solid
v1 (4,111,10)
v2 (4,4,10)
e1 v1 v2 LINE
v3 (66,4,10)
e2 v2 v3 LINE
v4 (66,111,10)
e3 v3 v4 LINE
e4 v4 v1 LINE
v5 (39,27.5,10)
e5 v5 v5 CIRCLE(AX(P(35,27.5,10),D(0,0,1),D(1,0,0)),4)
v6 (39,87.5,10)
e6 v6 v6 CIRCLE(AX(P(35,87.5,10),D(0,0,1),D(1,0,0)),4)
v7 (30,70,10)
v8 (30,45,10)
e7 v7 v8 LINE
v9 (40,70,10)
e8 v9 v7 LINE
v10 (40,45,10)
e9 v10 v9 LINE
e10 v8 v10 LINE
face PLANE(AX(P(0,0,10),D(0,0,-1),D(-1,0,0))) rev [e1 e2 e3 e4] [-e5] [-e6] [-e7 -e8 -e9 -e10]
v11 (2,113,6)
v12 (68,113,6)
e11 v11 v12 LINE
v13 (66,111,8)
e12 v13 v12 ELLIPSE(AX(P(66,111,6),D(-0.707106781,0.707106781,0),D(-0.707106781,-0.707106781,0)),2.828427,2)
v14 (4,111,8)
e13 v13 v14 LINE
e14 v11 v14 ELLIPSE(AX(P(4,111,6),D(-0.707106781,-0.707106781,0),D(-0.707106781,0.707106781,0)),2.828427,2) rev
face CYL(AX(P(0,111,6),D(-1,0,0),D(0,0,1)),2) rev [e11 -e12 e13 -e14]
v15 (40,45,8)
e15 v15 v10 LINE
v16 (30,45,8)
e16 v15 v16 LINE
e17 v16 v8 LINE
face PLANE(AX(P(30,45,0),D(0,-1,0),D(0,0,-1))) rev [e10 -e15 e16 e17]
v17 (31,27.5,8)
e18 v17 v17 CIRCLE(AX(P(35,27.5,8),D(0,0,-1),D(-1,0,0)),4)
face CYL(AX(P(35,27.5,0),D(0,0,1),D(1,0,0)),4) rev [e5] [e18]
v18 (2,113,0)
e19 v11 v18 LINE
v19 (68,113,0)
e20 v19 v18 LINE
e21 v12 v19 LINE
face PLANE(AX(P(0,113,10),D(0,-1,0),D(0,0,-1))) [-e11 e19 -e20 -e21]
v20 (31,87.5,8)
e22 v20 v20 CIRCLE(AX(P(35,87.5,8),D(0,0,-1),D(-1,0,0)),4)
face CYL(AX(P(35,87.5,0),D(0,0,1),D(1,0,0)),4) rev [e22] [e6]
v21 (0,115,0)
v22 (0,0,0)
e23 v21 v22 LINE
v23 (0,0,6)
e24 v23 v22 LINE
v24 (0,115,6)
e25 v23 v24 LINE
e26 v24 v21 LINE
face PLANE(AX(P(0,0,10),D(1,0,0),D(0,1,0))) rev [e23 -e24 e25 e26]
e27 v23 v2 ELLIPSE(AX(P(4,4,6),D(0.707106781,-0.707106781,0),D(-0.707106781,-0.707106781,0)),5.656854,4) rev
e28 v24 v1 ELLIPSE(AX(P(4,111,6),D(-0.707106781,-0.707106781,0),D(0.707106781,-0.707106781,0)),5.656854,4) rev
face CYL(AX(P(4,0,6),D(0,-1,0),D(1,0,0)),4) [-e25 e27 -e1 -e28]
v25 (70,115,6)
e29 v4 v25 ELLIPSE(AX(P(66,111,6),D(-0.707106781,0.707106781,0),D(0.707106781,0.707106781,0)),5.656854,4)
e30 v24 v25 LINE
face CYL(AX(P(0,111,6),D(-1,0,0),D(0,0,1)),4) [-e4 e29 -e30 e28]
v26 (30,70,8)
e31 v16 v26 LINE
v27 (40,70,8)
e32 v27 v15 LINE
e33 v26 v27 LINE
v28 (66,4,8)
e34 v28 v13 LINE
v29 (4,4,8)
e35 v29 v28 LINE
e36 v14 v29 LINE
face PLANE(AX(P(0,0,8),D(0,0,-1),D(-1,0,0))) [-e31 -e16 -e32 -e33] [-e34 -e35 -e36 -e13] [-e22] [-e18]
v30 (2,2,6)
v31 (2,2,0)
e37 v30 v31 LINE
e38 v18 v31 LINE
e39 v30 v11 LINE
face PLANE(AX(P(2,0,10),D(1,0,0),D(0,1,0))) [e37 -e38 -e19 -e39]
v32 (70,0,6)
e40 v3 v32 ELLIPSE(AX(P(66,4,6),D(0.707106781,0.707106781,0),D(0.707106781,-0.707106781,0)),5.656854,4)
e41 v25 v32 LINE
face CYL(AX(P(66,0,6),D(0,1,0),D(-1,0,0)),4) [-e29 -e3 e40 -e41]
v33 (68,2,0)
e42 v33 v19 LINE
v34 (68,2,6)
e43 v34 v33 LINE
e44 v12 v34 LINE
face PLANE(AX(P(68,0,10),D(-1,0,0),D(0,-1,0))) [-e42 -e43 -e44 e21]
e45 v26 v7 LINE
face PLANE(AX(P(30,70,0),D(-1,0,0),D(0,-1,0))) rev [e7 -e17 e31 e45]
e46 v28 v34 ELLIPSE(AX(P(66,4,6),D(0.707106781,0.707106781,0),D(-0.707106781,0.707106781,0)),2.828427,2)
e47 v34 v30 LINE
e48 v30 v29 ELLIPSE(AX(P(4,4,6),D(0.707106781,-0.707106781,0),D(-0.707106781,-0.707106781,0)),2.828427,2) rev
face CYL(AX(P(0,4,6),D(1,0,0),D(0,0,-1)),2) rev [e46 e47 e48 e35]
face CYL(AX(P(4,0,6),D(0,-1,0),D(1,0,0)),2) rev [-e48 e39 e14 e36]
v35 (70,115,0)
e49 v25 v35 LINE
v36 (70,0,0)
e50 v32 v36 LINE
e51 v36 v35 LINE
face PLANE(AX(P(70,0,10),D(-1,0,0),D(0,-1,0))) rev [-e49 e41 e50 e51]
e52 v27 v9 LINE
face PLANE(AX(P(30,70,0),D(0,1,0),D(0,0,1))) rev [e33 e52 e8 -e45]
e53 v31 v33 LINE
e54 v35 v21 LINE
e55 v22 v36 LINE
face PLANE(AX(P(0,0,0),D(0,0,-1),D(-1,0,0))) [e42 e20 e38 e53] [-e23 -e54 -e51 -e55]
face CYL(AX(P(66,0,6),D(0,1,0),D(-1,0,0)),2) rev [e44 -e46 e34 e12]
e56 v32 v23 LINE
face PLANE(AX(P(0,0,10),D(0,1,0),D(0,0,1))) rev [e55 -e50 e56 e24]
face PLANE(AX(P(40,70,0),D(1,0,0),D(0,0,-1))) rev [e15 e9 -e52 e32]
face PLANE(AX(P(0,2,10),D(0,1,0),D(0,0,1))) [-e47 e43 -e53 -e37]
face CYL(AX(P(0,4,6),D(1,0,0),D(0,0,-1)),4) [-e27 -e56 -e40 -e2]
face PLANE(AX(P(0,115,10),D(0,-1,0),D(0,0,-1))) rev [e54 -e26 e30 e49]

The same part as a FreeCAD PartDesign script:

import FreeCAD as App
import Part
import Sketcher
from FreeCAD import Vector


def edges_at(feature, points):
    """Names of the edges that pass closest to the given points."""
    edges = feature.Shape.Edges
    near = lambda p: min(range(len(edges)), key=lambda i: edges[i].distToShape(Part.Vertex(*p))[0])
    return sorted({f"Edge{near(p) + 1}" for p in points})


def faces_at(feature, points):
    """Names of the faces that lie closest to the given points."""
    faces = feature.Shape.Faces
    near = lambda p: min(range(len(faces)), key=lambda i: faces[i].distToShape(Part.Vertex(*p))[0])
    return sorted({f"Face{near(p) + 1}" for p in points})


def add_polygon(sketch, points):
    """Adds a closed chain of lines whose ends are joined by coincident constraints."""
    first, n = sketch.GeometryCount, len(points)
    for a, b in zip(points, points[1:] + points[:1]):
        sketch.addGeometry(Part.LineSegment(App.Vector(*a, 0), App.Vector(*b, 0)), False)
    for i in range(n):
        sketch.addConstraint(Sketcher.Constraint("Coincident", first + i, 2, first + (i + 1) % n, 1))

doc = App.newDocument("Part")
body = doc.addObject("PartDesign::Body", "Body")

# Sketch on XY plane
sketch1 = doc.addObject("Sketcher::SketchObject", "Sketch")
body.addObject(sketch1)
sketch1.AttachmentSupport = (doc.XY_Plane, [""])
sketch1.MapMode = "FlatFace"
add_polygon(sketch1, [(0, 115), (0, 0), (70, 0), (70, 115)])  # lines 0-3
sketch1.addConstraint([
    Sketcher.Constraint("Vertical", 0),
    Sketcher.Constraint("Horizontal", 1),
    Sketcher.Constraint("Vertical", 2),
    Sketcher.Constraint("Horizontal", 3),
    Sketcher.Constraint("Coincident", 0, 2, -1, 1),
    Sketcher.Constraint("DistanceX", 1, 1, 1, 2, 70.0),
    Sketcher.Constraint("DistanceY", 0, 2, 0, 1, 115.0),
])
pad1 = doc.addObject("PartDesign::Pad", "Pad")
body.addObject(pad1)
pad1.Profile = sketch1
pad1.Length = 10
doc.recompute()

fillet = doc.addObject("PartDesign::Fillet", "Fillet")
body.addObject(fillet)
fillet.Base = (pad1, edges_at(pad1, [
    (70, 57.5, 10),
    (35, 115, 10),
    (0, 57.5, 10),
    (35, 0, 10),
]))
fillet.Radius = 4
doc.recompute()

thickness = doc.addObject("PartDesign::Thickness", "Thickness")
body.addObject(thickness)
thickness.Base = (fillet, faces_at(fillet, [(35, 57.5, 0)]))
thickness.Value = 2
thickness.Reversed = True
thickness.Join = "Arc"

# Sketch on XY plane
sketch2 = doc.addObject("Sketcher::SketchObject", "Sketch001")
body.addObject(sketch2)
sketch2.AttachmentSupport = (doc.XY_Plane, [""])
sketch2.MapMode = "FlatFace"
sketch2.AttachmentOffset = App.Placement(Vector(0, 0, 10), App.Rotation())
sketch2.addGeometry(Part.Circle(Vector(35, 87.5, 0), Vector(0, 0, 1), 4), False)  # 0
sketch2.addGeometry(Part.Circle(Vector(35, 27.5, 0), Vector(0, 0, 1), 4), False)  # 1
add_polygon(sketch2, [(30, 70), (30, 45), (40, 45), (40, 70)])  # lines 2-5
sketch2.addConstraint([
    Sketcher.Constraint("Vertical", 2),
    Sketcher.Constraint("Horizontal", 3),
    Sketcher.Constraint("Vertical", 4),
    Sketcher.Constraint("Horizontal", 5),
    Sketcher.Constraint("Equal", 0, 1),
    Sketcher.Constraint("Vertical", 0, 3, 1, 3),
    Sketcher.Constraint("Diameter", 0, 8.0),
    Sketcher.Constraint("DistanceX", 3, 1, 3, 2, 10.0),
    Sketcher.Constraint("DistanceY", 2, 2, 2, 1, 25.0),
    Sketcher.Constraint("DistanceX", -1, 1, 0, 3, 35.0),
    Sketcher.Constraint("DistanceX", -1, 1, 2, 2, 30.0),
    Sketcher.Constraint("DistanceY", -1, 1, 2, 2, 45.0),
    Sketcher.Constraint("DistanceY", 1, 3, 0, 3, 60.0),
    Sketcher.Constraint("DistanceY", -1, 1, 0, 3, 87.5),
])
pocket1 = doc.addObject("PartDesign::Pocket", "Pocket")
body.addObject(pocket1)
pocket1.Profile = sketch2
pocket1.Length = 10

doc.recompute()
